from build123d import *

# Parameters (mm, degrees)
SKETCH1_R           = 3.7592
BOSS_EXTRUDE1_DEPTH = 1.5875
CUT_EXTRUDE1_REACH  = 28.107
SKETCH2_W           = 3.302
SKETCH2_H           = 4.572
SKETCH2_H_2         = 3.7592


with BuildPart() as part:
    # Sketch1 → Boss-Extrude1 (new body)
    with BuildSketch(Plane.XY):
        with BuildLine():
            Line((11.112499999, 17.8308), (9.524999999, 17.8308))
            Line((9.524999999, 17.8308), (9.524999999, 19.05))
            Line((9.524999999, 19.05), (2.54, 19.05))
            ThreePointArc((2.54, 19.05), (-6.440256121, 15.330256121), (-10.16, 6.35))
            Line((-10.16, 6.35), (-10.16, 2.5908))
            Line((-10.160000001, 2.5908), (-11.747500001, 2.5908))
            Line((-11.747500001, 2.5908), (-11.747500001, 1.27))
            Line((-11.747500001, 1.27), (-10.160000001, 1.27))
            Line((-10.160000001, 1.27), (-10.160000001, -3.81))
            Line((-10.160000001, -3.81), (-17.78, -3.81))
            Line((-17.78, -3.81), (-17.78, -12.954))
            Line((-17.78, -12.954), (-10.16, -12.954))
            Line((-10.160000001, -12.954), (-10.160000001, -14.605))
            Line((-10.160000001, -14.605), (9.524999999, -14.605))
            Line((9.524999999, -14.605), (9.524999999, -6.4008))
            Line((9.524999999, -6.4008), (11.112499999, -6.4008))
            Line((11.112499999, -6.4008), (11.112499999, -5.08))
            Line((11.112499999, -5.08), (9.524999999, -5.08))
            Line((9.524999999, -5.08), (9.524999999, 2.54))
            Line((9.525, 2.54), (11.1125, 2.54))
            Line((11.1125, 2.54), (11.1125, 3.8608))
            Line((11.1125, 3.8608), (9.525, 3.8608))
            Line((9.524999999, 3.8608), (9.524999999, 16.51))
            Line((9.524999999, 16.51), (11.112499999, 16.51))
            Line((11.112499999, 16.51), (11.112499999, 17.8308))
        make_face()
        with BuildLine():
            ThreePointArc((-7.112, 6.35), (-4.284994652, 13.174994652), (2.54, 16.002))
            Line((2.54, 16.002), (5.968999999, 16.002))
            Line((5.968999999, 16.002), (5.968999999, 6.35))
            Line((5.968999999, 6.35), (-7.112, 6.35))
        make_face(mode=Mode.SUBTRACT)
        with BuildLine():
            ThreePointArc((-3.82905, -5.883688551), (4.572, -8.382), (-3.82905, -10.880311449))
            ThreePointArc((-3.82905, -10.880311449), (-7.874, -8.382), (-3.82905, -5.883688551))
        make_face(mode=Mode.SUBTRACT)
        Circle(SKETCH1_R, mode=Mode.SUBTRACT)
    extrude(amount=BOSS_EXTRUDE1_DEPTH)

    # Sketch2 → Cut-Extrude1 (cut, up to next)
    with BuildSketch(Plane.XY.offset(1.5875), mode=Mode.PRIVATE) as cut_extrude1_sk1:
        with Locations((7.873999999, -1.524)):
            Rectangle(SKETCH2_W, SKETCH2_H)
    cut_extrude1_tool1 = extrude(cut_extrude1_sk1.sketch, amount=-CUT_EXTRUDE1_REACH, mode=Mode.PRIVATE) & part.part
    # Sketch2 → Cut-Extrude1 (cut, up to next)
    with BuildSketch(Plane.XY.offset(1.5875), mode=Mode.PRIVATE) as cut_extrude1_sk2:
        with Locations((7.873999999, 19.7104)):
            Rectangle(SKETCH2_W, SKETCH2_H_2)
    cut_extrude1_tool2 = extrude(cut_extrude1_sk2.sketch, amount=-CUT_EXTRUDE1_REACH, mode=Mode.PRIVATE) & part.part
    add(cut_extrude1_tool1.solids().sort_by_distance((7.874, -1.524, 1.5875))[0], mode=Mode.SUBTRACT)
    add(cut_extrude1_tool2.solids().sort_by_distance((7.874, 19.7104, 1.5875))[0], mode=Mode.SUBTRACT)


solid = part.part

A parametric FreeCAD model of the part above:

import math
import FreeCAD as App
import Part
import Sketcher
Q = App.Units.Quantity


def add_polygon(sketch, points):
    """Adds a closed chain of lines whose ends are joined by coincident constraints."""
    first, n = sketch.GeometryCount, len(points)
    for a, b in zip(points, points[1:] + points[:1]):
        sketch.addGeometry(Part.LineSegment(App.Vector(*a, 0), App.Vector(*b, 0)), False)
    for i in range(n):
        sketch.addConstraint(Sketcher.Constraint("Coincident", first + i, 2, first + (i + 1) % n, 1))

doc = App.newDocument("Part")
body = doc.addObject("PartDesign::Body", "Body")

# Sketch on XY plane
sketch1 = doc.addObject("Sketcher::SketchObject", "Sketch")
body.addObject(sketch1)
sketch1.AttachmentSupport = (doc.XY_Plane, [""])
sketch1.MapMode = "FlatFace"
sketch1.addGeometry([
    Part.LineSegment(App.Vector(11.1, 17.8, 0), App.Vector(9.5, 17.8, 0)),  # 0
    Part.LineSegment(App.Vector(9.5, 17.8, 0), App.Vector(9.5, 19.1, 0)),  # 1
    Part.LineSegment(App.Vector(9.5, 19.1, 0), App.Vector(2.5, 19.1, 0)),  # 2
    Part.ArcOfCircle(Part.Circle(App.Vector(2.5, 6.3, 0), App.Vector(0, 0, 1), 12.7), math.radians(90), math.radians(180)),  # 3
    Part.LineSegment(App.Vector(-10.2, 6.3, 0), App.Vector(-10.2, 2.6, 0)),  # 4
    Part.LineSegment(App.Vector(-10.2, 2.6, 0), App.Vector(-11.7, 2.6, 0)),  # 5
    Part.LineSegment(App.Vector(-11.7, 2.6, 0), App.Vector(-11.7, 1.3, 0)),  # 6
    Part.LineSegment(App.Vector(-11.7, 1.3, 0), App.Vector(-10.2, 1.3, 0)),  # 7
    Part.LineSegment(App.Vector(-10.2, 1.3, 0), App.Vector(-10.2, -3.8, 0)),  # 8
    Part.LineSegment(App.Vector(-10.2, -3.8, 0), App.Vector(-17.8, -3.8, 0)),  # 9
    Part.LineSegment(App.Vector(-17.8, -3.8, 0), App.Vector(-17.8, -13, 0)),  # 10
    Part.LineSegment(App.Vector(-17.8, -13, 0), App.Vector(-10.2, -13, 0)),  # 11
    Part.LineSegment(App.Vector(-10.2, -13, 0), App.Vector(-10.2, -14.6, 0)),  # 12
    Part.LineSegment(App.Vector(-10.2, -14.6, 0), App.Vector(9.5, -14.6, 0)),  # 13
    Part.LineSegment(App.Vector(9.5, -14.6, 0), App.Vector(9.5, -6.4, 0)),  # 14
    Part.LineSegment(App.Vector(9.5, -6.4, 0), App.Vector(11.1, -6.4, 0)),  # 15
    Part.LineSegment(App.Vector(11.1, -6.4, 0), App.Vector(11.1, -5.1, 0)),  # 16
    Part.LineSegment(App.Vector(11.1, -5.1, 0), App.Vector(9.5, -5.1, 0)),  # 17
    Part.LineSegment(App.Vector(9.5, -5.1, 0), App.Vector(9.5, 2.5, 0)),  # 18
    Part.LineSegment(App.Vector(9.5, 2.5, 0), App.Vector(11.1, 2.5, 0)),  # 19
    Part.LineSegment(App.Vector(11.1, 2.5, 0), App.Vector(11.1, 3.9, 0)),  # 20
    Part.LineSegment(App.Vector(11.1, 3.9, 0), App.Vector(9.5, 3.9, 0)),  # 21
    Part.LineSegment(App.Vector(9.5, 3.9, 0), App.Vector(9.5, 16.5, 0)),  # 22
    Part.LineSegment(App.Vector(9.5, 16.5, 0), App.Vector(11.1, 16.5, 0)),  # 23
    Part.LineSegment(App.Vector(11.1, 16.5, 0), App.Vector(11.1, 17.8, 0)),  # 24
    Part.ArcOfCircle(Part.Circle(App.Vector(-5.1, -8.4, 0), App.Vector(0, 0, 1), 2.8), math.radians(63), math.radians(297)),  # 25
    Part.ArcOfCircle(Part.Circle(App.Vector(0, -8.4, 0), App.Vector(0, 0, 1), 4.6), math.radians(-147), math.radians(147)),  # 26
    Part.Circle(App.Vector(0, 0, 0), App.Vector(0, 0, 1), 3.8),  # 27
    Part.LineSegment(App.Vector(6, 6.3, 0), App.Vector(-7.1, 6.3, 0)),  # 28
    Part.ArcOfCircle(Part.Circle(App.Vector(2.5, 6.3, 0), App.Vector(0, 0, 1), 9.7), math.radians(90), math.radians(180)),  # 29
    Part.LineSegment(App.Vector(2.5, 16, 0), App.Vector(6, 16, 0)),  # 30
    Part.LineSegment(App.Vector(6, 16, 0), App.Vector(6, 6.3, 0)),  # 31
], False)
sketch1.addConstraint([
    Sketcher.Constraint("Coincident", 0, 2, 1, 1),
    Sketcher.Constraint("Coincident", 1, 2, 2, 1),
    Sketcher.Constraint("Tangent", 2, 2, 3, 1),
    Sketcher.Constraint("Tangent", 3, 2, 4, 1),
    Sketcher.Constraint("Coincident", 4, 2, 5, 1),
    Sketcher.Constraint("Coincident", 5, 2, 6, 1),
    Sketcher.Constraint("Coincident", 6, 2, 7, 1),
    Sketcher.Constraint("Coincident", 7, 2, 8, 1),
    Sketcher.Constraint("Coincident", 8, 2, 9, 1),
    Sketcher.Constraint("Coincident", 9, 2, 10, 1),
    Sketcher.Constraint("Coincident", 10, 2, 11, 1),
    Sketcher.Constraint("Coincident", 11, 2, 12, 1),
    Sketcher.Constraint("Coincident", 12, 2, 13, 1),
    Sketcher.Constraint("Coincident", 13, 2, 14, 1),
    Sketcher.Constraint("Coincident", 14, 2, 15, 1),
    Sketcher.Constraint("Coincident", 15, 2, 16, 1),
    Sketcher.Constraint("Coincident", 16, 2, 17, 1),
    Sketcher.Constraint("Coincident", 17, 2, 18, 1),
    Sketcher.Constraint("Coincident", 18, 2, 19, 1),
    Sketcher.Constraint("Coincident", 19, 2, 20, 1),
    Sketcher.Constraint("Coincident", 20, 2, 21, 1),
    Sketcher.Constraint("Coincident", 21, 2, 22, 1),
    Sketcher.Constraint("Coincident", 22, 2, 23, 1),
    Sketcher.Constraint("Coincident", 23, 2, 24, 1),
    Sketcher.Constraint("Coincident", 24, 2, 0, 1),
    Sketcher.Constraint("Coincident", 25, 1, 26, 2),
    Sketcher.Constraint("Coincident", 26, 1, 25, 2),
    Sketcher.Constraint("Coincident", 28, 2, 29, 2),
    Sketcher.Constraint("Tangent", 29, 1, 30, 1),
    Sketcher.Constraint("Coincident", 30, 2, 31, 1),
    Sketcher.Constraint("Coincident", 31, 2, 28, 1),
    Sketcher.Constraint("Horizontal", 0),
    Sketcher.Constraint("Vertical", 1),
    Sketcher.Constraint("Horizontal", 2),
    Sketcher.Constraint("Vertical", 4),
    Sketcher.Constraint("Horizontal", 5),
    Sketcher.Constraint("Vertical", 6),
    Sketcher.Constraint("Horizontal", 7),
    Sketcher.Constraint("Vertical", 8),
    Sketcher.Constraint("Horizontal", 9),
    Sketcher.Constraint("Vertical", 10),
    Sketcher.Constraint("Horizontal", 11),
    Sketcher.Constraint("Vertical", 12),
    Sketcher.Constraint("Horizontal", 13),
    Sketcher.Constraint("Vertical", 14),
    Sketcher.Constraint("Horizontal", 15),
    Sketcher.Constraint("Vertical", 16),
    Sketcher.Constraint("Horizontal", 17),
    Sketcher.Constraint("Vertical", 18),
    Sketcher.Constraint("Horizontal", 19),
    Sketcher.Constraint("Vertical", 20),
    Sketcher.Constraint("Horizontal", 21),
    Sketcher.Constraint("Vertical", 22),
    Sketcher.Constraint("Horizontal", 23),
    Sketcher.Constraint("Vertical", 24),
    Sketcher.Constraint("Horizontal", 28),
    Sketcher.Constraint("Horizontal", 30),
    Sketcher.Constraint("Vertical", 31),
    Sketcher.Constraint("Coincident", 27, 3, -1, 1),
    Sketcher.Constraint("Coincident", 29, 3, 3, 3),
    Sketcher.Constraint("PointOnObject", 26, 3, -2),
    Sketcher.Constraint("Horizontal", 25, 3, 26, 3),
    Sketcher.Constraint("Horizontal", 3, 2, 28, 2),
    Sketcher.Constraint("Vertical", 4, 2, 7, 2),
    Sketcher.Constraint("Vertical", 8, 2, 11, 2),
    Sketcher.Constraint("Vertical", 1, 2, 13, 2),
    Sketcher.Constraint("Vertical", 14, 2, 17, 2),
    Sketcher.Constraint("Vertical", 16, 2, 19, 2),
    Sketcher.Constraint("Vertical", 18, 2, 21, 2),
    Sketcher.Constraint("Vertical", 20, 2, 23, 2),
    Sketcher.Constraint("Equal", 0, 5),
    Sketcher.Constraint("Equal", 6, 16),
    Sketcher.Constraint("Equal", 11, 18),
    Sketcher.Constraint("Equal", 16, 20),
    Sketcher.Constraint("Equal", 20, 24),
    Sketcher.Constraint("Radius", 3, Q("0.5 in")),
    Sketcher.Constraint("Radius", 25, Q("0.11 in")),
    Sketcher.Constraint("Radius", 26, Q("0.18 in")),
    Sketcher.Constraint("Radius", 29, Q("0.38 in")),
    Sketcher.Constraint("Diameter", 27, Q("0.296 in")),
    Sketcher.Constraint("DistanceX", 9, 2, 9, 1, Q("0.3 in")),
    Sketcher.Constraint("DistanceY", 8, 2, 8, 1, Q("0.2 in")),
    Sketcher.Constraint("DistanceY", 10, 2, 10, 1, Q("0.36 in")),
    Sketcher.Constraint("DistanceX", -1, 1, 3, 3, Q("0.1 in")),
    Sketcher.Constraint("DistanceX", 25, 3, -1, 1, Q("0.2 in")),
    Sketcher.Constraint("DistanceY", 16, 2, -1, 1, Q("0.2 in")),
    Sketcher.Constraint("DistanceY", 6, 2, 3, 2, Q("0.2 in")),
    Sketcher.Constraint("DistanceY", 22, 2, 1, 2, Q("0.1 in")),
    Sketcher.Constraint("DistanceX", 0, 2, 0, 1, Q("0.0625 in")),
    Sketcher.Constraint("DistanceX", 2, 2, 2, 1, Q("0.275 in")),
    Sketcher.Constraint("DistanceX", 28, 2, 28, 1, Q("0.515 in")),
    Sketcher.Constraint("DistanceY", 1, 1, 1, 2, Q("0.048 in")),
    Sketcher.Constraint("DistanceY", 12, 2, 12, 1, Q("0.065 in")),
    Sketcher.Constraint("DistanceY", 14, 1, 14, 2, Q("0.323 in")),
    Sketcher.Constraint("DistanceY", 25, 3, -1, 1, Q("0.33 in")),
])
pad1 = doc.addObject("PartDesign::Pad", "Pad")
body.addObject(pad1)
pad1.Profile = sketch1
pad1.Length = Q("0.0625 in")

# Sketch on XY plane
sketch2 = doc.addObject("Sketcher::SketchObject", "Sketch001")
body.addObject(sketch2)
sketch2.AttachmentSupport = (doc.XY_Plane, [""])
sketch2.MapMode = "FlatFace"
sketch2.AttachmentOffset = App.Placement(App.Vector(0, 0, 0.0625 * 25.4), App.Rotation())
add_polygon(sketch2, [(6.2, 0.8), (6.2, -3.8), (9.5, -3.8), (9.5, 0.8)])  # lines 0-3
sketch2.addConstraint([
    Sketcher.Constraint("Vertical", 0),
    Sketcher.Constraint("Horizontal", 1),
    Sketcher.Constraint("Vertical", 2),
    Sketcher.Constraint("Horizontal", 3),
    Sketcher.Constraint("DistanceX", 1, 1, 1, 2, Q("0.13 in")),
    Sketcher.Constraint("DistanceY", 0, 2, 0, 1, Q("0.18 in")),
    Sketcher.Constraint("DistanceY", 0, 2, -1, 1, Q("0.15 in")),
    Sketcher.Constraint("DistanceX", -1, 1, 0, 2, Q("0.245 in")),
])
pocket1 = doc.addObject("PartDesign::Pocket", "Pocket")
body.addObject(pocket1)
pocket1.Profile = sketch2
pocket1.Type = "UpToFirst"

# Sketch on XY plane
sketch3 = doc.addObject("Sketcher::SketchObject", "Sketch002")
body.addObject(sketch3)
sketch3.AttachmentSupport = (doc.XY_Plane, [""])
sketch3.MapMode = "FlatFace"
sketch3.AttachmentOffset = App.Placement(App.Vector(0, 0, 0.0625 * 25.4), App.Rotation())
add_polygon(sketch3, [(6.2, 21.6), (6.2, 17.8), (9.5, 17.8), (9.5, 21.6)])  # lines 0-3
sketch3.addConstraint([
    Sketcher.Constraint("Vertical", 0),
    Sketcher.Constraint("Horizontal", 1),
    Sketcher.Constraint("Vertical", 2),
    Sketcher.Constraint("Horizontal", 3),
    Sketcher.Constraint("DistanceX", 1, 1, 1, 2, Q("0.13 in")),
    Sketcher.Constraint("DistanceY", 0, 2, 0, 1, Q("0.148 in")),
    Sketcher.Constraint("DistanceY", -1, 1, 2, 2, Q("0.85 in")),
    Sketcher.Constraint("DistanceX", -1, 1, 0, 2, Q("0.245 in")),
])
pocket2 = doc.addObject("PartDesign::Pocket", "Pocket001")
body.addObject(pocket2)
pocket2.Profile = sketch3
pocket2.Length = Q("0.0625 in")

doc.recompute()
